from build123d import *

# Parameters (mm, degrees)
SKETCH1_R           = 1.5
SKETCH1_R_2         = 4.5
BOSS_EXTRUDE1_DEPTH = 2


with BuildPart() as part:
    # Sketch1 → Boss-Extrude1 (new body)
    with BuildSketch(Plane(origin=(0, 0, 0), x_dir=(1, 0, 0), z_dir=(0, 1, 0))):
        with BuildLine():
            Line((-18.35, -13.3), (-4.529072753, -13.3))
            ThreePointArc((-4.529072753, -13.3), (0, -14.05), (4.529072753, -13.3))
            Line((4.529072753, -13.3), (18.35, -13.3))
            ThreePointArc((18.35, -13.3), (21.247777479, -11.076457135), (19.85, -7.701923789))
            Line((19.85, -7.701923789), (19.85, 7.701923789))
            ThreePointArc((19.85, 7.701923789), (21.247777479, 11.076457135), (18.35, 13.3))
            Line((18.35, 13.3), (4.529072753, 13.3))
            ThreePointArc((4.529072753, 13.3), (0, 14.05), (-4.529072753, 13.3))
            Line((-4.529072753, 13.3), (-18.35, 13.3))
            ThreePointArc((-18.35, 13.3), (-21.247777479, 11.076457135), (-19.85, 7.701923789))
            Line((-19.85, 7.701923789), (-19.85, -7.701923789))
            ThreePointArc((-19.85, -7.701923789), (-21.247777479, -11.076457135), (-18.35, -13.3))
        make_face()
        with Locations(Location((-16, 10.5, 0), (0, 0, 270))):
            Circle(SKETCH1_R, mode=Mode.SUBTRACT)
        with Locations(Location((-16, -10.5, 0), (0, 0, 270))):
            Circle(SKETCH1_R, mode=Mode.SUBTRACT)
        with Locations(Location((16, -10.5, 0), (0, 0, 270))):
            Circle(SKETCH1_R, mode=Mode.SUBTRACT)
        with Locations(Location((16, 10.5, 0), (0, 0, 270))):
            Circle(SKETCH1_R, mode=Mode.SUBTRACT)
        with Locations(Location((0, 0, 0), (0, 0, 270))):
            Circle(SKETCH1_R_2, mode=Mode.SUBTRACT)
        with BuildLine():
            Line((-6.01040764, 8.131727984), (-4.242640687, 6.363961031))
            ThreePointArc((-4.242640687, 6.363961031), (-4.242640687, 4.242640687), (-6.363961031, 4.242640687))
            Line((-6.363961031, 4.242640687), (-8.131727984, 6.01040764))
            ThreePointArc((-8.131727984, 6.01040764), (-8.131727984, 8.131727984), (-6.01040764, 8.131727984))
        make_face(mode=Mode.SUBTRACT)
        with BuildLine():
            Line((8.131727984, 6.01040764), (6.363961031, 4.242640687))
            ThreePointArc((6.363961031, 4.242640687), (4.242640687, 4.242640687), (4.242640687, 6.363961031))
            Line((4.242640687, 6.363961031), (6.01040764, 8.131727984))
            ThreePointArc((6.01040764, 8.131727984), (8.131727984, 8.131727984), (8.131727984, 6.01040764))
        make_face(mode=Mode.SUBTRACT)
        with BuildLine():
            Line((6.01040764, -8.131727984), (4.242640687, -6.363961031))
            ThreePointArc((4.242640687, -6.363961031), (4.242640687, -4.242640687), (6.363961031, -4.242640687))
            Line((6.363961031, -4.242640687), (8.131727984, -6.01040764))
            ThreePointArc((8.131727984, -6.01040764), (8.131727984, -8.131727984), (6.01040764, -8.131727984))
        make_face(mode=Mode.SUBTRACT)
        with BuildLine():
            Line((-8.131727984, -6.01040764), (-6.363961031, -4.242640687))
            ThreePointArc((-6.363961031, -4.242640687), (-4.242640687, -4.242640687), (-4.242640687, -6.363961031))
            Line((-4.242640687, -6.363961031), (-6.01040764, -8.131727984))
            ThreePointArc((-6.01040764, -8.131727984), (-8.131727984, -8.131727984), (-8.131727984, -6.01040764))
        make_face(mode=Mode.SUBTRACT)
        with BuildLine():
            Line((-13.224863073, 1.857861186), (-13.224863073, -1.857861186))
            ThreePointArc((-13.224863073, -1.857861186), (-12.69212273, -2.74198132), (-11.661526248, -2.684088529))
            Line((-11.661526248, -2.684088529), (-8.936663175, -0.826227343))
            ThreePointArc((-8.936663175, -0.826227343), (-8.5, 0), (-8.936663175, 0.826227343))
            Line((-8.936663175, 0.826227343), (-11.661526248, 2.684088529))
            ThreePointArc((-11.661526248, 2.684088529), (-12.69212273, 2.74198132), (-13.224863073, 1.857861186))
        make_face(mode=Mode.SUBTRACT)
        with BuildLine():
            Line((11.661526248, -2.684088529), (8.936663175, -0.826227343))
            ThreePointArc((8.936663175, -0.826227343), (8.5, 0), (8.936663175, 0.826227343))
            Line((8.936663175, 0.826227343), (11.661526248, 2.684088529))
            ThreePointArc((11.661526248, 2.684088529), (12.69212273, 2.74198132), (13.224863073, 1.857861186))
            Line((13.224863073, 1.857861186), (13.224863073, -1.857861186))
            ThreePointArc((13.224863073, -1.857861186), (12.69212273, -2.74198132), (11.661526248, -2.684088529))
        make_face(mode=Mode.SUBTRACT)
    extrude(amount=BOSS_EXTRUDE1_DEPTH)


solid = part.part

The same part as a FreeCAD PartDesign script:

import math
import FreeCAD as App
import Part
import Sketcher
from FreeCAD import Vector
Q = App.Units.Quantity

doc = App.newDocument("Part")
body = doc.addObject("PartDesign::Body", "Body")

# Sketch on XZ plane
sketch1 = body.newObject("Sketcher::SketchObject", "Sketch")
sketch1.AttachmentSupport = (doc.getObject("XZ_Plane"), [""])
sketch1.MapMode = "FlatFace"
sketch1.addGeometry([
    Part.LineSegment(Vector(-18.35, 13.3, 0), Vector(-4.529073, 13.3, 0)),  # 0
    Part.ArcOfCircle(Part.Circle(Vector(0, 0, 0), Vector(0, 0, 1), 14.05), math.radians(71.194659), math.radians(108.805341)),  # 1
    Part.LineSegment(Vector(4.529073, 13.3, 0), Vector(18.35, 13.3, 0)),  # 2
    Part.ArcOfCircle(Part.Circle(Vector(18.35, 10.3, 0), Vector(0, 0, 1), 3), math.radians(-60), math.radians(90)),  # 3
    Part.LineSegment(Vector(19.85, 7.701924, 0), Vector(19.85, -7.701924, 0)),  # 4
    Part.ArcOfCircle(Part.Circle(Vector(18.35, -10.3, 0), Vector(0, 0, 1), 3), math.radians(-90), math.radians(60)),  # 5
    Part.LineSegment(Vector(18.35, -13.3, 0), Vector(4.529073, -13.3, 0)),  # 6
    Part.ArcOfCircle(Part.Circle(Vector(0, 0, 0), Vector(0, 0, 1), 14.05), math.radians(-108.805341), math.radians(-71.194659)),  # 7
    Part.LineSegment(Vector(-4.529073, -13.3, 0), Vector(-18.35, -13.3, 0)),  # 8
    Part.ArcOfCircle(Part.Circle(Vector(-18.35, -10.3, 0), Vector(0, 0, 1), 3), math.radians(120), math.radians(270)),  # 9
    Part.LineSegment(Vector(-19.85, -7.701924, 0), Vector(-19.85, 7.701924, 0)),  # 10
    Part.ArcOfCircle(Part.Circle(Vector(-18.35, 10.3, 0), Vector(0, 0, 1), 3), math.radians(90), math.radians(240)),  # 11
    Part.Circle(Vector(-16, 10.5, 0), Vector(0, 0, 1), 1.5),  # 12
    Part.ArcOfCircle(Part.Circle(Vector(-7.071068, 7.071068, 0), Vector(0, 0, 1), 1.5), math.radians(45), math.radians(225)),  # 13
    Part.LineSegment(Vector(-8.131728, 6.010408, 0), Vector(-6.363961, 4.242641, 0)),  # 14
    Part.ArcOfCircle(Part.Circle(Vector(-5.303301, 5.303301, 0), Vector(0, 0, 1), 1.5), math.radians(-135), math.radians(45)),  # 15
    Part.LineSegment(Vector(-4.242641, 6.363961, 0), Vector(-6.010408, 8.131728, 0)),  # 16
    Part.ArcOfCircle(Part.Circle(Vector(7.071068, 7.071068, 0), Vector(0, 0, 1), 1.5), math.radians(-45), math.radians(135)),  # 17
    Part.LineSegment(Vector(6.010408, 8.131728, 0), Vector(4.242641, 6.363961, 0)),  # 18
    Part.ArcOfCircle(Part.Circle(Vector(5.303301, 5.303301, 0), Vector(0, 0, 1), 1.5), math.radians(135), math.radians(315)),  # 19
    Part.LineSegment(Vector(6.363961, 4.242641, 0), Vector(8.131728, 6.010408, 0)),  # 20
    Part.Circle(Vector(16, 10.5, 0), Vector(0, 0, 1), 1.5),  # 21
    Part.LineSegment(Vector(-13.224863, 1.857861, 0), Vector(-13.224863, -1.857861, 0)),  # 22
    Part.ArcOfCircle(Part.Circle(Vector(-12.224863, -1.857861, 0), Vector(0, 0, 1), 1), math.radians(-180), math.radians(-55.713123)),  # 23
    Part.LineSegment(Vector(-11.661526, -2.684089, 0), Vector(-8.936663, -0.826227, 0)),  # 24
    Part.ArcOfCircle(Part.Circle(Vector(-9.5, 0, 0), Vector(0, 0, 1), 1), math.radians(-55.713123), math.radians(55.713123)),  # 25
    Part.LineSegment(Vector(-8.936663, 0.826227, 0), Vector(-11.661526, 2.684089, 0)),  # 26
    Part.ArcOfCircle(Part.Circle(Vector(-12.224863, 1.857861, 0), Vector(0, 0, 1), 1), math.radians(55.713123), math.radians(180)),  # 27
    Part.Circle(Vector(-16, -10.5, 0), Vector(0, 0, 1), 1.5),  # 28
    Part.ArcOfCircle(Part.Circle(Vector(-7.071068, -7.071068, 0), Vector(0, 0, 1), 1.5), math.radians(135), math.radians(315)),  # 29
    Part.LineSegment(Vector(-6.010408, -8.131728, 0), Vector(-4.242641, -6.363961, 0)),  # 30
    Part.ArcOfCircle(Part.Circle(Vector(-5.303301, -5.303301, 0), Vector(0, 0, 1), 1.5), math.radians(-45), math.radians(135)),  # 31
    Part.LineSegment(Vector(-6.363961, -4.242641, 0), Vector(-8.131728, -6.010408, 0)),  # 32
    Part.Circle(Vector(0, 0, 0), Vector(0, 0, 1), 4.5),  # 33
    Part.ArcOfCircle(Part.Circle(Vector(12.224863, 1.857861, 0), Vector(0, 0, 1), 1), math.radians(0), math.radians(124.286877)),  # 34
    Part.LineSegment(Vector(11.661526, 2.684089, 0), Vector(8.936663, 0.826227, 0)),  # 35
    Part.ArcOfCircle(Part.Circle(Vector(9.5, 0, 0), Vector(0, 0, 1), 1), math.radians(124.286877), math.radians(235.713123)),  # 36
    Part.LineSegment(Vector(8.936663, -0.826227, 0), Vector(11.661526, -2.684089, 0)),  # 37
    Part.ArcOfCircle(Part.Circle(Vector(12.224863, -1.857861, 0), Vector(0, 0, 1), 1), math.radians(-124.286877), math.radians(0)),  # 38
    Part.LineSegment(Vector(13.224863, -1.857861, 0), Vector(13.224863, 1.857861, 0)),  # 39
    Part.ArcOfCircle(Part.Circle(Vector(7.071068, -7.071068, 0), Vector(0, 0, 1), 1.5), math.radians(-135), math.radians(45)),  # 40
    Part.LineSegment(Vector(8.131728, -6.010408, 0), Vector(6.363961, -4.242641, 0)),  # 41
    Part.ArcOfCircle(Part.Circle(Vector(5.303301, -5.303301, 0), Vector(0, 0, 1), 1.5), math.radians(45), math.radians(225)),  # 42
    Part.LineSegment(Vector(4.242641, -6.363961, 0), Vector(6.010408, -8.131728, 0)),  # 43
    Part.Circle(Vector(16, -10.5, 0), Vector(0, 0, 1), 1.5),  # 44
], False)
sketch1.addConstraint([
    Sketcher.Constraint("Coincident", 0, 2, 1, 2),
    Sketcher.Constraint("Coincident", 1, 1, 2, 1),
    Sketcher.Constraint("Tangent", 2, 2, 3, 2),
    Sketcher.Constraint("Coincident", 3, 1, 4, 1),
    Sketcher.Constraint("Coincident", 4, 2, 5, 2),
    Sketcher.Constraint("Tangent", 5, 1, 6, 1),
    Sketcher.Constraint("Coincident", 6, 2, 7, 2),
    Sketcher.Constraint("Coincident", 7, 1, 8, 1),
    Sketcher.Constraint("Tangent", 8, 2, 9, 2),
    Sketcher.Constraint("Coincident", 9, 1, 10, 1),
    Sketcher.Constraint("Coincident", 10, 2, 11, 2),
    Sketcher.Constraint("Tangent", 11, 1, 0, 1),
    Sketcher.Constraint("Tangent", 13, 2, 14, 1),
    Sketcher.Constraint("Tangent", 14, 2, 15, 1),
    Sketcher.Constraint("Tangent", 15, 2, 16, 1),
    Sketcher.Constraint("Tangent", 16, 2, 13, 1),
    Sketcher.Constraint("Tangent", 17, 2, 18, 1),
    Sketcher.Constraint("Tangent", 18, 2, 19, 1),
    Sketcher.Constraint("Tangent", 19, 2, 20, 1),
    Sketcher.Constraint("Tangent", 20, 2, 17, 1),
    Sketcher.Constraint("Tangent", 22, 2, 23, 1),
    Sketcher.Constraint("Tangent", 23, 2, 24, 1),
    Sketcher.Constraint("Tangent", 24, 2, 25, 1),
    Sketcher.Constraint("Tangent", 25, 2, 26, 1),
    Sketcher.Constraint("Tangent", 26, 2, 27, 1),
    Sketcher.Constraint("Tangent", 27, 2, 22, 1),
    Sketcher.Constraint("Tangent", 29, 2, 30, 1),
    Sketcher.Constraint("Tangent", 30, 2, 31, 1),
    Sketcher.Constraint("Tangent", 31, 2, 32, 1),
    Sketcher.Constraint("Tangent", 32, 2, 29, 1),
    Sketcher.Constraint("Tangent", 34, 2, 35, 1),
    Sketcher.Constraint("Tangent", 35, 2, 36, 1),
    Sketcher.Constraint("Tangent", 36, 2, 37, 1),
    Sketcher.Constraint("Tangent", 37, 2, 38, 1),
    Sketcher.Constraint("Tangent", 38, 2, 39, 1),
    Sketcher.Constraint("Tangent", 39, 2, 34, 1),
    Sketcher.Constraint("Tangent", 40, 2, 41, 1),
    Sketcher.Constraint("Tangent", 41, 2, 42, 1),
    Sketcher.Constraint("Tangent", 42, 2, 43, 1),
    Sketcher.Constraint("Tangent", 43, 2, 40, 1),
    Sketcher.Constraint("Horizontal", 0),
    Sketcher.Constraint("Horizontal", 2),
    Sketcher.Constraint("Vertical", 4),
    Sketcher.Constraint("Horizontal", 6),
    Sketcher.Constraint("Horizontal", 8),
    Sketcher.Constraint("Vertical", 10),
    Sketcher.Constraint("Vertical", 22),
    Sketcher.Constraint("Vertical", 39),
    Sketcher.Constraint("Coincident", 1, 3, -1, 1),
    Sketcher.Constraint("Coincident", 7, 3, -1, 1),
    Sketcher.Constraint("Coincident", 33, 3, -1, 1),
    Sketcher.Constraint("Equal", 3, 5),
    Sketcher.Constraint("Equal", 1, 7),
    Sketcher.Constraint("Equal", 5, 9),
    Sketcher.Constraint("Equal", 9, 11),
    Sketcher.Constraint("Equal", 12, 13),
    Sketcher.Constraint("Equal", 13, 15),
    Sketcher.Constraint("Equal", 15, 17),
    Sketcher.Constraint("Equal", 17, 19),
    Sketcher.Constraint("Equal", 19, 21),
    Sketcher.Constraint("Equal", 23, 25),
    Sketcher.Constraint("Equal", 25, 27),
    Sketcher.Constraint("Equal", 21, 28),
    Sketcher.Constraint("Equal", 28, 29),
    Sketcher.Constraint("Equal", 29, 31),
    Sketcher.Constraint("Equal", 27, 34),
    Sketcher.Constraint("Equal", 34, 36),
    Sketcher.Constraint("Equal", 36, 38),
    Sketcher.Constraint("Equal", 31, 40),
    Sketcher.Constraint("Equal", 40, 42),
    Sketcher.Constraint("Equal", 42, 44),
    Sketcher.Constraint("Symmetric", 3, 3, 9, 3, -1, 1),
    Sketcher.Constraint("Symmetric", 5, 3, 11, 3, -1, 1),
    Sketcher.Constraint("Symmetric", 21, 3, 28, 3, -1, 1),
    Sketcher.Constraint("Symmetric", 17, 3, 29, 3, -1, 1),
    Sketcher.Constraint("Symmetric", 19, 3, 31, 3, -1, 1),
    Sketcher.Constraint("Symmetric", 23, 3, 34, 3, -1, 1),
    Sketcher.Constraint("Symmetric", 25, 3, 36, 3, -1, 1),
    Sketcher.Constraint("Symmetric", 13, 3, 40, 3, -1, 1),
    Sketcher.Constraint("Symmetric", 15, 3, 42, 3, -1, 1),
    Sketcher.Constraint("Symmetric", 12, 3, 44, 3, -1, 1),
    Sketcher.Constraint("Symmetric", 5, 3, 9, 3, -2),
    Sketcher.Constraint("Symmetric", 13, 3, 17, 3, -2),
    Sketcher.Constraint("Symmetric", 15, 3, 19, 3, -2),
    Sketcher.Constraint("Symmetric", 12, 3, 21, 3, -2),
    Sketcher.Constraint("Symmetric", 26, 2, 34, 2, -2),
    Sketcher.Constraint("Perpendicular", 16, 18),
    Sketcher.Constraint("Parallel", 26, 37),
    Sketcher.Constraint("Horizontal", 4, 2, 9, 1),
    Sketcher.Constraint("Diameter", 12, Q("3 mm")),
    Sketcher.Constraint("Diameter", 33, Q("9 mm")),
    Sketcher.Constraint("Radius", 3, Q("3 mm")),
    Sketcher.Constraint("Radius", 23, Q("1 mm")),
    Sketcher.Constraint("Radius", 1, Q("14.05 mm")),
    Sketcher.Constraint("DistanceX", 12, 3, -1, 1, Q("16 mm")),
    Sketcher.Constraint("Distance", 14, Q("2.5 mm")),
    Sketcher.Constraint("DistanceY", -1, 1, 3, 3, Q("10.3 mm")),
    Sketcher.Constraint("DistanceY", -1, 1, 12, 3, Q("10.5 mm")),
    Sketcher.Constraint("DistanceX", 25, 3, -1, 1, Q("9.5 mm")),
    Sketcher.Constraint("DistanceX", -1, 1, 3, 3, Q("18.35 mm")),
    Sketcher.Constraint("DistanceX", -1, 1, 3, 1, Q("19.85 mm")),
    Sketcher.Constraint("DistanceX", 15, 3, -1, 1, Q("5.303301 mm")),
    Sketcher.Constraint("DistanceY", -1, 1, 15, 3, Q("5.303301 mm")),
    Sketcher.Constraint("DistanceY", 22, 2, 22, 1, Q("3.715722 mm")),
    Sketcher.Constraint("DistanceY", 23, 2, -1, 1, Q("2.684089 mm")),
])
pad1 = body.newObject("PartDesign::Pad", "Pad")
pad1.Profile = sketch1
pad1.Length = 2
pad1.Reversed = True

doc.recompute()
